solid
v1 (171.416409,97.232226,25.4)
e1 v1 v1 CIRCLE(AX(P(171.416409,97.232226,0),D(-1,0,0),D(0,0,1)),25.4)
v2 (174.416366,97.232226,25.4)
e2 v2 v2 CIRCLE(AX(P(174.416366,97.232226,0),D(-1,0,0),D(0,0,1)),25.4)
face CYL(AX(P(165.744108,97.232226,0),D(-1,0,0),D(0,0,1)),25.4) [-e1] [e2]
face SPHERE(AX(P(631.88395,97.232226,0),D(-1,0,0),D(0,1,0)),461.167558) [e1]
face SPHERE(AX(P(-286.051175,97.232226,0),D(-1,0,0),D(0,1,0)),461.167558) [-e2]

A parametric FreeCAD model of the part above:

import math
import FreeCAD as App
import Part
import Sketcher
from FreeCAD import Vector

doc = App.newDocument("Part")
body = doc.addObject("PartDesign::Body", "Body")

sketch1 = body.newObject("Sketcher::SketchObject", "Sketch")
sketch1.AttachmentSupport = (doc.getObject("XY_Plane"), [""])
sketch1.MapMode = "FlatFace"
sketch1.addGeometry([
    Part.LineSegment(Vector(174.4, 122.6, 0), Vector(171.4, 122.6, 0)),
    Part.ArcOfCircle(Part.Circle(Vector(631.9, 97.2, 0), Vector(0, 0, 1), 461.2), math.radians(176.84), math.radians(180)),
    Part.LineSegment(Vector(170.7, 97.2, 0), Vector(175.1, 97.2, 0)),
    Part.ArcOfCircle(Part.Circle(Vector(-286.1, 97.2, 0), Vector(0, 0, 1), 461.2), math.radians(0), math.radians(3.16)),
], False)
sketch1.addGeometry(Part.LineSegment(Vector(-286.1, 97.2, 0), Vector(631.9, 97.2, 0)), True)
sketch1.addConstraint([
    Sketcher.Constraint("Coincident", 0, 2, 1, 1),
    Sketcher.Constraint("Coincident", 1, 2, 2, 1),
    Sketcher.Constraint("Coincident", 2, 2, 3, 1),
    Sketcher.Constraint("Coincident", 3, 2, 0, 1),
    Sketcher.Constraint("Horizontal", 0),
    Sketcher.Constraint("Horizontal", 2),
    Sketcher.Constraint("Horizontal", 4),
    Sketcher.Constraint("Coincident", 4, 1, 3, 3),
    Sketcher.Constraint("Coincident", 4, 2, 1, 3),
    Sketcher.Constraint("Horizontal", 2, 2, 4, 1),
    Sketcher.Constraint("DistanceY", 3, 3, 0, 2, 25.4),
    Sketcher.Constraint("Radius", 1, 461.167558),
    Sketcher.Constraint("Radius", 3, 461.167556),
    Sketcher.Constraint("DistanceX", 2, 1, 2, 2, 4.399991),
    Sketcher.Constraint("DistanceX", -1, 1, 1, 3, 631.88395),
    Sketcher.Constraint("DistanceY", -1, 1, 1, 3, 97.232226),
])
revolution = body.newObject("PartDesign::Revolution", "Revolution")
revolution.Profile = sketch1
revolution.ReferenceAxis = (sketch1, ["Axis0"])
revolution.Angle = 360

doc.recompute()
